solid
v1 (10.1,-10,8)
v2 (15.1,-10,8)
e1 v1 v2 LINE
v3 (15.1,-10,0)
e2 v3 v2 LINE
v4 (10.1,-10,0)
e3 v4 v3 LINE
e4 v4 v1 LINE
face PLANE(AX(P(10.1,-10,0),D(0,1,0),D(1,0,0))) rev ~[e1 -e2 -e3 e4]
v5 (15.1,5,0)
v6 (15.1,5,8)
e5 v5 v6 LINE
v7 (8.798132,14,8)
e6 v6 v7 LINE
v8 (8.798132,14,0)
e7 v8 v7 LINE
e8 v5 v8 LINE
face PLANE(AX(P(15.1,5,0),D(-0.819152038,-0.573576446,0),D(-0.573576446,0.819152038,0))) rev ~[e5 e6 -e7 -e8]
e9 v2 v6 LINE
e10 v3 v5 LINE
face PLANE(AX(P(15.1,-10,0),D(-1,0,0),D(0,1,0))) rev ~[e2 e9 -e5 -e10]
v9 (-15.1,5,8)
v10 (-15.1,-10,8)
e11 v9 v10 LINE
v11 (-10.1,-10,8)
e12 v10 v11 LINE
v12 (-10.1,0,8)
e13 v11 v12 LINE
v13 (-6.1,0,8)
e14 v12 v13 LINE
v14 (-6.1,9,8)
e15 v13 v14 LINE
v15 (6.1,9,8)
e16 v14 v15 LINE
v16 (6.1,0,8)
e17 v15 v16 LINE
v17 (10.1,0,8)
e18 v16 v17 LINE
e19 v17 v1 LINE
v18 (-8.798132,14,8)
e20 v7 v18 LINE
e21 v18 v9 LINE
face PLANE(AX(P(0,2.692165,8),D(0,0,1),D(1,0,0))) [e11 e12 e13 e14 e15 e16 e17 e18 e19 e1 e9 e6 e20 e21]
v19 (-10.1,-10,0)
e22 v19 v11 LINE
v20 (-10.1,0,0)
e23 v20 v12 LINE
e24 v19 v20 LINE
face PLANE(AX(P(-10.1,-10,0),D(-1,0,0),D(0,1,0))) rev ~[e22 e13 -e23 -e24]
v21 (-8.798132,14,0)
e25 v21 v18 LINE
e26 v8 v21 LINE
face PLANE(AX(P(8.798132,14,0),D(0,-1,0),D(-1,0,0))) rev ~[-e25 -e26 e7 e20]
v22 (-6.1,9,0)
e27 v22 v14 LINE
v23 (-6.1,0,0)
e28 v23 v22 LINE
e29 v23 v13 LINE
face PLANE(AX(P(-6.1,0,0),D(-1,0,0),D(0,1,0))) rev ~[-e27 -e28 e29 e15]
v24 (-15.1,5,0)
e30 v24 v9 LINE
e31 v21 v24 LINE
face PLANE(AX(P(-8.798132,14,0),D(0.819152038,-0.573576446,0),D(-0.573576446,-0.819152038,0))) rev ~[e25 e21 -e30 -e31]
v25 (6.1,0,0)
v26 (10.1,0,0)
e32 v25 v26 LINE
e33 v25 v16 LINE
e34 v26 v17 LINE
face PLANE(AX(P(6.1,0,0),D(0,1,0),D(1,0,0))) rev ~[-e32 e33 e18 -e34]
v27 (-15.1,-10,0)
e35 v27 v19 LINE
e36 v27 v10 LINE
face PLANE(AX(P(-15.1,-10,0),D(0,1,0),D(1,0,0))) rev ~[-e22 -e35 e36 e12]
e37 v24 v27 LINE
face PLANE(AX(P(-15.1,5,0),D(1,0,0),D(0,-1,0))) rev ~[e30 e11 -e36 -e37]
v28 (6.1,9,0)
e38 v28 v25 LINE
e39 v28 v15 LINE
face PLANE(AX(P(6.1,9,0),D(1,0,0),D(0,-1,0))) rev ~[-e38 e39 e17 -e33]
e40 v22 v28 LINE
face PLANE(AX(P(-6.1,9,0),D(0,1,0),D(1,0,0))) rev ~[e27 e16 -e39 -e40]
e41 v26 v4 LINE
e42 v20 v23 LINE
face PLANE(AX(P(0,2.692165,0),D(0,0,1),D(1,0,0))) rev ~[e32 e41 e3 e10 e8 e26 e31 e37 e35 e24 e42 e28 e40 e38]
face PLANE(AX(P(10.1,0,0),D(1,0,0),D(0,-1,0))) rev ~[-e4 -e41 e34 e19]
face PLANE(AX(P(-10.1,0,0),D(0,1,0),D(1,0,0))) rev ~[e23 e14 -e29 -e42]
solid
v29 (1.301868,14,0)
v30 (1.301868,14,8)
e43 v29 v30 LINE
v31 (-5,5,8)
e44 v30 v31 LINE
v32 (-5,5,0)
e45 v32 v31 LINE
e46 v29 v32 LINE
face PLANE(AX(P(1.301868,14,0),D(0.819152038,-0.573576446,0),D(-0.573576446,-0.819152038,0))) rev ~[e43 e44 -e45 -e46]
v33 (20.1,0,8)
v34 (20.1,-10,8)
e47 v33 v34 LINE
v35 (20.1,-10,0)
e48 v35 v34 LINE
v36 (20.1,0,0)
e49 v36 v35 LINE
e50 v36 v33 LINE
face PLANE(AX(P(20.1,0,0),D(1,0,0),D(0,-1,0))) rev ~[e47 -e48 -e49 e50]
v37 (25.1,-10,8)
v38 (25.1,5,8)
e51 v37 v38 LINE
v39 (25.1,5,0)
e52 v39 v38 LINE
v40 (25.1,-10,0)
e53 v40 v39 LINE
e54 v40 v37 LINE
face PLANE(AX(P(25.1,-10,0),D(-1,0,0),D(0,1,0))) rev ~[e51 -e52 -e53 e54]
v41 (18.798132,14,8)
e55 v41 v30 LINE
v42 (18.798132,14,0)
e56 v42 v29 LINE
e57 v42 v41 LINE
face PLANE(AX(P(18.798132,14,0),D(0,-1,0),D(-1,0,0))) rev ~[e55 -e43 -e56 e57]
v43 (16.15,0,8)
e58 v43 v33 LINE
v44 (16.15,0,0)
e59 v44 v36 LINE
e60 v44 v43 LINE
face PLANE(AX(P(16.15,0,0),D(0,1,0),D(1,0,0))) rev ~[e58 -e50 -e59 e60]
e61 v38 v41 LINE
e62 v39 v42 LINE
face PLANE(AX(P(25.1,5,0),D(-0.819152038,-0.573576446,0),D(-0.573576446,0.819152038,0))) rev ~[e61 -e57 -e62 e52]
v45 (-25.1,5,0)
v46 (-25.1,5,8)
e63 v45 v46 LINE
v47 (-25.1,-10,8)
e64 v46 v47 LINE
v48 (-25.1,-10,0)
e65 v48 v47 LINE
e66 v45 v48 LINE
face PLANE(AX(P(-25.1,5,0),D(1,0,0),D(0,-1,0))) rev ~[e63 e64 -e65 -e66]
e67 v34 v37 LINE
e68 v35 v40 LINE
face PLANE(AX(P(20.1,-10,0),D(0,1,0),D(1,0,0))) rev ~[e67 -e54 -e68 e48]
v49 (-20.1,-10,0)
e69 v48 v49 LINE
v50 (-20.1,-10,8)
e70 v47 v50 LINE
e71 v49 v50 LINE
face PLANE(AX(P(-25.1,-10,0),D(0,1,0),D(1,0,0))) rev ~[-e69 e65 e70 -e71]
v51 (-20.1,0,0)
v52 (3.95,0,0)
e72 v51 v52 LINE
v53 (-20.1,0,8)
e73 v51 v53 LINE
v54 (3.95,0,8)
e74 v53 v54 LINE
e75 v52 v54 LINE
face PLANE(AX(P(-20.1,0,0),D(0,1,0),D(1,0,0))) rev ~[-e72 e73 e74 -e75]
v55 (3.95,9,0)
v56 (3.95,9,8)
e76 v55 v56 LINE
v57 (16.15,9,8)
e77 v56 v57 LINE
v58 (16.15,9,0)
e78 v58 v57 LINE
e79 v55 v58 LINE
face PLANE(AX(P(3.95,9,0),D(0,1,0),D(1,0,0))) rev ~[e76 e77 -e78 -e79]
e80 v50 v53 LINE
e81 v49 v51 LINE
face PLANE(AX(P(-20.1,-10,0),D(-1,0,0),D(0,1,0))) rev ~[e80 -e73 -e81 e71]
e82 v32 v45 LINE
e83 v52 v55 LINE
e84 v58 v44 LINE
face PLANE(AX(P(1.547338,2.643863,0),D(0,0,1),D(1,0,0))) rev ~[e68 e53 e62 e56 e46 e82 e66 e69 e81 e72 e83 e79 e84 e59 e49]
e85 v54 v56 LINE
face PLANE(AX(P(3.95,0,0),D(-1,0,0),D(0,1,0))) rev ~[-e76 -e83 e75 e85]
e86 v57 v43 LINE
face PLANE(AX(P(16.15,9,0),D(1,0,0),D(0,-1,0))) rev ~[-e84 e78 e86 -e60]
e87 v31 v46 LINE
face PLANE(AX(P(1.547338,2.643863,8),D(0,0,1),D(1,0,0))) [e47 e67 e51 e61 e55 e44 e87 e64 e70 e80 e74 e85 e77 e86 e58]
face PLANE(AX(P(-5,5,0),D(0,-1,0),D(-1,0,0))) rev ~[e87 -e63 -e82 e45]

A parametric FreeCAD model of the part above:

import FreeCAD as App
import Part
import Sketcher
Q = App.Units.Quantity

doc = App.newDocument("Part")
body = doc.addObject("PartDesign::Body", "Body")

# Sketch on XY plane
sketch1 = body.newObject("Sketcher::SketchObject", "Sketch")
sketch1.AttachmentSupport = (doc.getObject("XY_Plane"), [""])
sketch1.MapMode = "FlatFace"
sketch1.addGeometry(Part.LineSegment(App.Vector(3.95, 0, 0), App.Vector(3.95, 9, 0)), False)
sketch1.addGeometry(Part.LineSegment(App.Vector(3.95, 9, 0), App.Vector(16.15, 9, 0)), False)
sketch1.addGeometry(Part.LineSegment(App.Vector(16.15, 9, 0), App.Vector(16.15, 0, 0)), False)
sketch1.addGeometry(Part.LineSegment(App.Vector(16.15, 0, 0), App.Vector(20.1, 0, 0)), False)
sketch1.addGeometry(Part.LineSegment(App.Vector(20.1, 0, 0), App.Vector(20.1, -10, 0)), False)
sketch1.addGeometry(Part.LineSegment(App.Vector(20.1, -10, 0), App.Vector(25.1, -10, 0)), False)
sketch1.addGeometry(Part.LineSegment(App.Vector(25.1, -10, 0), App.Vector(25.1, 5, 0)), False)
sketch1.addGeometry(Part.LineSegment(App.Vector(25.1, 5, 0), App.Vector(18.798132, 14, 0)), False)
sketch1.addGeometry(Part.LineSegment(App.Vector(18.798132, 14, 0), App.Vector(1.301868, 14, 0)), False)
sketch1.addGeometry(Part.LineSegment(App.Vector(1.301868, 14, 0), App.Vector(-5, 5, 0)), False)
sketch1.addGeometry(Part.LineSegment(App.Vector(-5, 5, 0), App.Vector(-25.1, 5, 0)), False)
sketch1.addGeometry(Part.LineSegment(App.Vector(-25.1, 5, 0), App.Vector(-25.1, -10, 0)), False)
sketch1.addGeometry(Part.LineSegment(App.Vector(-25.1, -10, 0), App.Vector(-20.1, -10, 0)), False)
sketch1.addGeometry(Part.LineSegment(App.Vector(-20.1, -10, 0), App.Vector(-20.1, 0, 0)), False)
sketch1.addGeometry(Part.LineSegment(App.Vector(-20.1, 0, 0), App.Vector(3.95, 0, 0)), False)
sketch1.addConstraint(Sketcher.Constraint("Coincident", 0, 2, 1, 1))
sketch1.addConstraint(Sketcher.Constraint("Coincident", 1, 2, 2, 1))
sketch1.addConstraint(Sketcher.Constraint("Coincident", 2, 2, 3, 1))
sketch1.addConstraint(Sketcher.Constraint("Coincident", 3, 2, 4, 1))
sketch1.addConstraint(Sketcher.Constraint("Coincident", 4, 2, 5, 1))
sketch1.addConstraint(Sketcher.Constraint("Coincident", 5, 2, 6, 1))
sketch1.addConstraint(Sketcher.Constraint("Coincident", 6, 2, 7, 1))
sketch1.addConstraint(Sketcher.Constraint("Coincident", 7, 2, 8, 1))
sketch1.addConstraint(Sketcher.Constraint("Coincident", 8, 2, 9, 1))
sketch1.addConstraint(Sketcher.Constraint("Coincident", 9, 2, 10, 1))
sketch1.addConstraint(Sketcher.Constraint("Coincident", 10, 2, 11, 1))
sketch1.addConstraint(Sketcher.Constraint("Coincident", 11, 2, 12, 1))
sketch1.addConstraint(Sketcher.Constraint("Coincident", 12, 2, 13, 1))
sketch1.addConstraint(Sketcher.Constraint("Coincident", 13, 2, 14, 1))
sketch1.addConstraint(Sketcher.Constraint("Coincident", 14, 2, 0, 1))
sketch1.addConstraint(Sketcher.Constraint("Vertical", 0))
sketch1.addConstraint(Sketcher.Constraint("Horizontal", 1))
sketch1.addConstraint(Sketcher.Constraint("Vertical", 2))
sketch1.addConstraint(Sketcher.Constraint("Horizontal", 3))
sketch1.addConstraint(Sketcher.Constraint("Vertical", 4))
sketch1.addConstraint(Sketcher.Constraint("Horizontal", 5))
sketch1.addConstraint(Sketcher.Constraint("Vertical", 6))
sketch1.addConstraint(Sketcher.Constraint("Horizontal", 8))
sketch1.addConstraint(Sketcher.Constraint("Horizontal", 10))
sketch1.addConstraint(Sketcher.Constraint("Vertical", 11))
sketch1.addConstraint(Sketcher.Constraint("Horizontal", 12))
sketch1.addConstraint(Sketcher.Constraint("Vertical", 13))
sketch1.addConstraint(Sketcher.Constraint("Horizontal", 14))
sketch1.addConstraint(Sketcher.Constraint("Symmetric", 3, 2, 13, 2, -1, 1))
sketch1.addConstraint(Sketcher.Constraint("Symmetric", 6, 2, 10, 2, -2))
sketch1.addConstraint(Sketcher.Constraint("PointOnObject", 2, 2, -1))
sketch1.addConstraint(Sketcher.Constraint("Horizontal", 5, 2, 11, 2))
sketch1.addConstraint(Sketcher.Constraint("Equal", 7, 9))
sketch1.addConstraint(Sketcher.Constraint("DistanceX", 5, 1, 5, 2, 5.0))
sketch1.addConstraint(Sketcher.Constraint("DistanceY", 0, 1, 0, 2, 9.0))
sketch1.addConstraint(Sketcher.Constraint("DistanceY", 4, 2, 4, 1, 10.0))
sketch1.addConstraint(Sketcher.Constraint("DistanceY", 6, 1, 6, 2, 15.0))
sketch1.addConstraint(Sketcher.Constraint("Angle", 7, Q("125.000001 deg")))
sketch1.addConstraint(Sketcher.Constraint("DistanceX", 1, 1, 1, 2, 12.2))
sketch1.addConstraint(Sketcher.Constraint("DistanceX", 10, 2, 10, 1, 20.1))
sketch1.addConstraint(Sketcher.Constraint("DistanceY", -1, 1, 7, 2, 14.0))
sketch1.addConstraint(Sketcher.Constraint("DistanceX", 9, 2, -1, 1, 5.0))
sketch1.addConstraint(Sketcher.Constraint("DistanceX", 3, 1, 3, 2, 3.95))
pad1 = body.newObject("PartDesign::Pad", "Pad")
pad1.Profile = sketch1
pad1.Length = 8
body2 = doc.addObject("PartDesign::Body", "Body001")

# Sketch on XY plane
sketch2 = body2.newObject("Sketcher::SketchObject", "Sketch001")
sketch2.AttachmentSupport = (doc.getObject("XY_Plane001"), [""])
sketch2.MapMode = "FlatFace"
sketch2.addGeometry(Part.LineSegment(App.Vector(-6.1, 0, 0), App.Vector(-6.1, 9, 0)), False)
sketch2.addGeometry(Part.LineSegment(App.Vector(-6.1, 9, 0), App.Vector(6.1, 9, 0)), False)
sketch2.addGeometry(Part.LineSegment(App.Vector(6.1, 9, 0), App.Vector(6.1, 0, 0)), False)
sketch2.addGeometry(Part.LineSegment(App.Vector(6.1, 0, 0), App.Vector(10.1, 0, 0)), False)
sketch2.addGeometry(Part.LineSegment(App.Vector(10.1, 0, 0), App.Vector(10.1, -10, 0)), False)
sketch2.addGeometry(Part.LineSegment(App.Vector(10.1, -10, 0), App.Vector(15.1, -10, 0)), False)
sketch2.addGeometry(Part.LineSegment(App.Vector(15.1, -10, 0), App.Vector(15.1, 5, 0)), False)
sketch2.addGeometry(Part.LineSegment(App.Vector(15.1, 5, 0), App.Vector(8.798132, 14, 0)), False)
sketch2.addGeometry(Part.LineSegment(App.Vector(8.798132, 14, 0), App.Vector(-8.798132, 14, 0)), False)
sketch2.addGeometry(Part.LineSegment(App.Vector(-8.798132, 14, 0), App.Vector(-15.1, 5, 0)), False)
sketch2.addGeometry(Part.LineSegment(App.Vector(-15.1, 5, 0), App.Vector(-15.1, -10, 0)), False)
sketch2.addGeometry(Part.LineSegment(App.Vector(-15.1, -10, 0), App.Vector(-10.1, -10, 0)), False)
sketch2.addGeometry(Part.LineSegment(App.Vector(-10.1, -10, 0), App.Vector(-10.1, 0, 0)), False)
sketch2.addGeometry(Part.LineSegment(App.Vector(-10.1, 0, 0), App.Vector(-6.1, 0, 0)), False)
sketch2.addConstraint(Sketcher.Constraint("Coincident", 0, 2, 1, 1))
sketch2.addConstraint(Sketcher.Constraint("Coincident", 1, 2, 2, 1))
sketch2.addConstraint(Sketcher.Constraint("Coincident", 2, 2, 3, 1))
sketch2.addConstraint(Sketcher.Constraint("Coincident", 3, 2, 4, 1))
sketch2.addConstraint(Sketcher.Constraint("Coincident", 4, 2, 5, 1))
sketch2.addConstraint(Sketcher.Constraint("Coincident", 5, 2, 6, 1))
sketch2.addConstraint(Sketcher.Constraint("Coincident", 6, 2, 7, 1))
sketch2.addConstraint(Sketcher.Constraint("Coincident", 7, 2, 8, 1))
sketch2.addConstraint(Sketcher.Constraint("Coincident", 8, 2, 9, 1))
sketch2.addConstraint(Sketcher.Constraint("Coincident", 9, 2, 10, 1))
sketch2.addConstraint(Sketcher.Constraint("Coincident", 10, 2, 11, 1))
sketch2.addConstraint(Sketcher.Constraint("Coincident", 11, 2, 12, 1))
sketch2.addConstraint(Sketcher.Constraint("Coincident", 12, 2, 13, 1))
sketch2.addConstraint(Sketcher.Constraint("Coincident", 13, 2, 0, 1))
sketch2.addConstraint(Sketcher.Constraint("Vertical", 0))
sketch2.addConstraint(Sketcher.Constraint("Horizontal", 1))
sketch2.addConstraint(Sketcher.Constraint("Vertical", 2))
sketch2.addConstraint(Sketcher.Constraint("Horizontal", 3))
sketch2.addConstraint(Sketcher.Constraint("Vertical", 4))
sketch2.addConstraint(Sketcher.Constraint("Horizontal", 5))
sketch2.addConstraint(Sketcher.Constraint("Vertical", 6))
sketch2.addConstraint(Sketcher.Constraint("Horizontal", 8))
sketch2.addConstraint(Sketcher.Constraint("Vertical", 10))
sketch2.addConstraint(Sketcher.Constraint("Horizontal", 11))
sketch2.addConstraint(Sketcher.Constraint("Vertical", 12))
sketch2.addConstraint(Sketcher.Constraint("Horizontal", 13))
sketch2.addConstraint(Sketcher.Constraint("Symmetric", 3, 2, 12, 2, -1, 1))
sketch2.addConstraint(Sketcher.Constraint("Symmetric", 6, 2, 9, 2, -2))
sketch2.addConstraint(Sketcher.Constraint("Symmetric", 2, 2, 13, 2, -2))
sketch2.addConstraint(Sketcher.Constraint("Horizontal", 5, 2, 10, 2))
sketch2.addConstraint(Sketcher.Constraint("Equal", 7, 9))
sketch2.addConstraint(Sketcher.Constraint("DistanceX", 3, 1, 3, 2, 4.0))
sketch2.addConstraint(Sketcher.Constraint("DistanceX", 5, 1, 5, 2, 5.0))
sketch2.addConstraint(Sketcher.Constraint("DistanceY", 0, 1, 0, 2, 9.0))
sketch2.addConstraint(Sketcher.Constraint("DistanceY", 4, 2, 4, 1, 10.0))
sketch2.addConstraint(Sketcher.Constraint("DistanceY", 6, 1, 6, 2, 15.0))
sketch2.addConstraint(Sketcher.Constraint("Angle", 7, Q("125.000001 deg")))
sketch2.addConstraint(Sketcher.Constraint("DistanceX", 1, 1, 1, 2, 12.2))
sketch2.addConstraint(Sketcher.Constraint("DistanceY", -1, 1, 7, 2, 14.0))
pad2 = body2.newObject("PartDesign::Pad", "Pad001")
pad2.Profile = sketch2
pad2.Length = 8

doc.recompute()
